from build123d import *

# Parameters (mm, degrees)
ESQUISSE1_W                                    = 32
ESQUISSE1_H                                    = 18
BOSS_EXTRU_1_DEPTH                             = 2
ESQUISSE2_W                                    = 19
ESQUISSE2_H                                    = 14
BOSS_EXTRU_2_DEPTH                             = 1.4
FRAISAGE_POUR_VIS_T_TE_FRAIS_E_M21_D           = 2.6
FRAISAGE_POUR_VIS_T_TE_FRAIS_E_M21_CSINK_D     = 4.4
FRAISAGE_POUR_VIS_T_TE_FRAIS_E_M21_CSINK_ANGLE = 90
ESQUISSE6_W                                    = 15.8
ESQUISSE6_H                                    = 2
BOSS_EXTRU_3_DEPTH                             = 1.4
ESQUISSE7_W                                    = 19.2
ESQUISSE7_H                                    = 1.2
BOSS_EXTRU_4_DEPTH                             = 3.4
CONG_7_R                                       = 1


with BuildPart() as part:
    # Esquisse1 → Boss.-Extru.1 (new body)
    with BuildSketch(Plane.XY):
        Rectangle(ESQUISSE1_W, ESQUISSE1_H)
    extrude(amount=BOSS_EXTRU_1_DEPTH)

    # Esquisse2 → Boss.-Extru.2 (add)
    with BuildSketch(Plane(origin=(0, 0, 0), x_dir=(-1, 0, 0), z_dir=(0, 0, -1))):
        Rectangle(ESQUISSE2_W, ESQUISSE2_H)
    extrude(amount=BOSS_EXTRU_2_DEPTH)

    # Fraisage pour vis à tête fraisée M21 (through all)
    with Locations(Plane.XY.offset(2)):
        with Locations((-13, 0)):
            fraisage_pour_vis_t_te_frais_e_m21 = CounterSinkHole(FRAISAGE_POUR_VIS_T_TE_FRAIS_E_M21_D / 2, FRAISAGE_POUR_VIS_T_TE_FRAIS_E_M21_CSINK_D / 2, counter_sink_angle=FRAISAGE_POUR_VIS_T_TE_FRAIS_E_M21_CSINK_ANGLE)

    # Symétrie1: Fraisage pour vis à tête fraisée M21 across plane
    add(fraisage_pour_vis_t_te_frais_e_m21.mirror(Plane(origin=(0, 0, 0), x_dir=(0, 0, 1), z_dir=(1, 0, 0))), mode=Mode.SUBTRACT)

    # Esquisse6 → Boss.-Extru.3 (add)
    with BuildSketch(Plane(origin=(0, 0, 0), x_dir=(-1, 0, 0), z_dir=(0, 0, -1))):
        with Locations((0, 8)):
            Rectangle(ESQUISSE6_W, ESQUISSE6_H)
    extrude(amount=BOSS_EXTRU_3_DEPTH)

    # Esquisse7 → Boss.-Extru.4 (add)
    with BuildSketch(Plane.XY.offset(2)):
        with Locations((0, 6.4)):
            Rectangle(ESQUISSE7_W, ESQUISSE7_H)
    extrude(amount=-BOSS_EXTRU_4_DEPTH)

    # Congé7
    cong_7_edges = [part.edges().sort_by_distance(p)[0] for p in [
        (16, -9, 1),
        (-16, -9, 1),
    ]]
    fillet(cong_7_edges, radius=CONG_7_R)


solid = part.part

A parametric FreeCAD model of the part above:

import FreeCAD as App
import Part
import Sketcher
from FreeCAD import Vector
Q = App.Units.Quantity


def edges_at(feature, points):
    """Names of the edges that pass closest to the given points."""
    edges = feature.Shape.Edges
    near = lambda p: min(range(len(edges)), key=lambda i: edges[i].distToShape(Part.Vertex(*p))[0])
    return sorted({f"Edge{near(p) + 1}" for p in points})

doc = App.newDocument("Part")
body = doc.addObject("PartDesign::Body", "Body")

sketch1 = doc.addObject("Sketcher::SketchObject", "Sketch")
body.addObject(sketch1)
sketch1.AttachmentSupport = (doc.XY_Plane, [""])
sketch1.MapMode = "FlatFace"
sketch1.addGeometry(Part.LineSegment(Vector(-16, 9, 0), Vector(-16, -9, 0)), False)
sketch1.addGeometry(Part.LineSegment(Vector(-16, -9, 0), Vector(16, -9, 0)), False)
sketch1.addGeometry(Part.LineSegment(Vector(16, -9, 0), Vector(16, 9, 0)), False)
sketch1.addGeometry(Part.LineSegment(Vector(16, 9, 0), Vector(-16, 9, 0)), False)
sketch1.addConstraint(Sketcher.Constraint("Coincident", 0, 2, 1, 1))
sketch1.addConstraint(Sketcher.Constraint("Coincident", 1, 2, 2, 1))
sketch1.addConstraint(Sketcher.Constraint("Coincident", 2, 2, 3, 1))
sketch1.addConstraint(Sketcher.Constraint("Coincident", 3, 2, 0, 1))
sketch1.addConstraint(Sketcher.Constraint("Vertical", 0))
sketch1.addConstraint(Sketcher.Constraint("Horizontal", 1))
sketch1.addConstraint(Sketcher.Constraint("Vertical", 2))
sketch1.addConstraint(Sketcher.Constraint("Horizontal", 3))
sketch1.addConstraint(Sketcher.Constraint("Symmetric", 0, 2, 2, 2, -1, 1))
sketch1.addConstraint(Sketcher.Constraint("DistanceX", 1, 1, 1, 2, Q("32 mm")))
sketch1.addConstraint(Sketcher.Constraint("DistanceY", 0, 2, 0, 1, Q("18 mm")))
pad1 = doc.addObject("PartDesign::Pad", "Pad")
body.addObject(pad1)
pad1.Profile = sketch1
pad1.Length = 2

sketch2 = doc.addObject("Sketcher::SketchObject", "Sketch001")
body.addObject(sketch2)
sketch2.AttachmentSupport = (doc.XY_Plane, [""])
sketch2.MapMode = "FlatFace"
sketch2.addGeometry(Part.LineSegment(Vector(10, 7, 0), Vector(10, -7, 0)), False)
sketch2.addGeometry(Part.LineSegment(Vector(10, -7, 0), Vector(-10, -7, 0)), False)
sketch2.addGeometry(Part.LineSegment(Vector(-10, -7, 0), Vector(-10, 7, 0)), False)
sketch2.addGeometry(Part.LineSegment(Vector(-10, 7, 0), Vector(10, 7, 0)), False)
sketch2.addConstraint(Sketcher.Constraint("Coincident", 0, 2, 1, 1))
sketch2.addConstraint(Sketcher.Constraint("Coincident", 1, 2, 2, 1))
sketch2.addConstraint(Sketcher.Constraint("Coincident", 2, 2, 3, 1))
sketch2.addConstraint(Sketcher.Constraint("Coincident", 3, 2, 0, 1))
sketch2.addConstraint(Sketcher.Constraint("Vertical", 0))
sketch2.addConstraint(Sketcher.Constraint("Horizontal", 1))
sketch2.addConstraint(Sketcher.Constraint("Vertical", 2))
sketch2.addConstraint(Sketcher.Constraint("Horizontal", 3))
sketch2.addConstraint(Sketcher.Constraint("Symmetric", 0, 2, 2, 2, -1, 1))
sketch2.addConstraint(Sketcher.Constraint("DistanceX", 1, 2, 1, 1, Q("19 mm")))
sketch2.addConstraint(Sketcher.Constraint("DistanceY", 0, 2, 0, 1, Q("14 mm")))
pad2 = doc.addObject("PartDesign::Pad", "Pad001")
body.addObject(pad2)
pad2.Profile = sketch2
pad2.Length = 1.4
pad2.Reversed = True

sketch3 = doc.addObject("Sketcher::SketchObject", "Sketch002")
body.addObject(sketch3)
sketch3.AttachmentSupport = (doc.XY_Plane, [""])
sketch3.MapMode = "FlatFace"
sketch3.AttachmentOffset = App.Placement(Vector(0, 0, 2), App.Rotation())
sketch3.addGeometry(Part.Circle(Vector(-13, 0, 0), Vector(0, 0, 1), 1.3), False)
sketch3.addConstraint(Sketcher.Constraint("PointOnObject", 0, 3, -1))
sketch3.addConstraint(Sketcher.Constraint("Diameter", 0, Q("2.6 mm")))
sketch3.addConstraint(Sketcher.Constraint("DistanceX", 0, 3, -1, 1, Q("13 mm")))
doc.recompute()
hole = doc.addObject("PartDesign::Hole", "Hole")
body.addObject(hole)
hole.Profile = sketch3
hole.ThreadType = "None"
hole.Diameter = 2.6
hole.DepthType = "ThroughAll"
hole.HoleCutType = "Countersink"
hole.HoleCutDiameter = 4.4
hole.HoleCutCountersinkAngle = 90
doc.recompute()

mirrored = doc.addObject("PartDesign::Mirrored", "Mirrored")
body.addObject(mirrored)
mirrored.Originals = [hole]
mirrored.MirrorPlane = (doc.YZ_Plane, [""])
body.Tip = mirrored

sketch4 = doc.addObject("Sketcher::SketchObject", "Sketch003")
body.addObject(sketch4)
sketch4.AttachmentSupport = (doc.XY_Plane, [""])
sketch4.MapMode = "FlatFace"
sketch4.addGeometry(Part.LineSegment(Vector(7.9, 9, 0), Vector(7.9, 7, 0)), False)
sketch4.addGeometry(Part.LineSegment(Vector(7.9, 7, 0), Vector(-7.9, 7, 0)), False)
sketch4.addGeometry(Part.LineSegment(Vector(-7.9, 7, 0), Vector(-7.9, 9, 0)), False)
sketch4.addGeometry(Part.LineSegment(Vector(-7.9, 9, 0), Vector(7.9, 9, 0)), False)
sketch4.addConstraint(Sketcher.Constraint("Coincident", 0, 2, 1, 1))
sketch4.addConstraint(Sketcher.Constraint("Coincident", 1, 2, 2, 1))
sketch4.addConstraint(Sketcher.Constraint("Coincident", 2, 2, 3, 1))
sketch4.addConstraint(Sketcher.Constraint("Coincident", 3, 2, 0, 1))
sketch4.addConstraint(Sketcher.Constraint("Vertical", 0))
sketch4.addConstraint(Sketcher.Constraint("Horizontal", 1))
sketch4.addConstraint(Sketcher.Constraint("Vertical", 2))
sketch4.addConstraint(Sketcher.Constraint("Horizontal", 3))
sketch4.addConstraint(Sketcher.Constraint("DistanceY", 0, 2, 0, 1, Q("2 mm")))
sketch4.addConstraint(Sketcher.Constraint("DistanceX", 1, 2, 1, 1, Q("15.8 mm")))
sketch4.addConstraint(Sketcher.Constraint("DistanceY", -1, 1, 0, 2, Q("7 mm")))
sketch4.addConstraint(Sketcher.Constraint("DistanceX", -1, 1, 0, 2, Q("7.9 mm")))
pad3 = doc.addObject("PartDesign::Pad", "Pad002")
body.addObject(pad3)
pad3.Profile = sketch4
pad3.Length = 1.4
pad3.Reversed = True

sketch5 = doc.addObject("Sketcher::SketchObject", "Sketch004")
body.addObject(sketch5)
sketch5.AttachmentSupport = (doc.XY_Plane, [""])
sketch5.MapMode = "FlatFace"
sketch5.AttachmentOffset = App.Placement(Vector(0, 0, 2), App.Rotation())
sketch5.addGeometry(Part.LineSegment(Vector(-9.6, 7, 0), Vector(-9.6, 5.8, 0)), False)
sketch5.addGeometry(Part.LineSegment(Vector(-9.6, 5.8, 0), Vector(9.6, 5.8, 0)), False)
sketch5.addGeometry(Part.LineSegment(Vector(9.6, 5.8, 0), Vector(9.6, 7, 0)), False)
sketch5.addGeometry(Part.LineSegment(Vector(9.6, 7, 0), Vector(-9.6, 7, 0)), False)
sketch5.addConstraint(Sketcher.Constraint("Coincident", 0, 2, 1, 1))
sketch5.addConstraint(Sketcher.Constraint("Coincident", 1, 2, 2, 1))
sketch5.addConstraint(Sketcher.Constraint("Coincident", 2, 2, 3, 1))
sketch5.addConstraint(Sketcher.Constraint("Coincident", 3, 2, 0, 1))
sketch5.addConstraint(Sketcher.Constraint("Vertical", 0))
sketch5.addConstraint(Sketcher.Constraint("Horizontal", 1))
sketch5.addConstraint(Sketcher.Constraint("Vertical", 2))
sketch5.addConstraint(Sketcher.Constraint("Horizontal", 3))
sketch5.addConstraint(Sketcher.Constraint("DistanceX", 1, 1, 1, 2, Q("19.2 mm")))
sketch5.addConstraint(Sketcher.Constraint("DistanceY", 0, 2, 0, 1, Q("1.2 mm")))
sketch5.addConstraint(Sketcher.Constraint("DistanceY", -1, 1, 2, 2, Q("7 mm")))
sketch5.addConstraint(Sketcher.Constraint("DistanceX", 0, 2, -1, 1, Q("9.6 mm")))
pad4 = doc.addObject("PartDesign::Pad", "Pad003")
body.addObject(pad4)
pad4.Profile = sketch5
pad4.Length = 3.4
pad4.Reversed = True
doc.recompute()

fillet = doc.addObject("PartDesign::Fillet", "Fillet")
body.addObject(fillet)
fillet.Base = (pad4, edges_at(pad4, [(16, -9, 1), (-16, -9, 1)]))
fillet.Radius = 1

doc.recompute()
